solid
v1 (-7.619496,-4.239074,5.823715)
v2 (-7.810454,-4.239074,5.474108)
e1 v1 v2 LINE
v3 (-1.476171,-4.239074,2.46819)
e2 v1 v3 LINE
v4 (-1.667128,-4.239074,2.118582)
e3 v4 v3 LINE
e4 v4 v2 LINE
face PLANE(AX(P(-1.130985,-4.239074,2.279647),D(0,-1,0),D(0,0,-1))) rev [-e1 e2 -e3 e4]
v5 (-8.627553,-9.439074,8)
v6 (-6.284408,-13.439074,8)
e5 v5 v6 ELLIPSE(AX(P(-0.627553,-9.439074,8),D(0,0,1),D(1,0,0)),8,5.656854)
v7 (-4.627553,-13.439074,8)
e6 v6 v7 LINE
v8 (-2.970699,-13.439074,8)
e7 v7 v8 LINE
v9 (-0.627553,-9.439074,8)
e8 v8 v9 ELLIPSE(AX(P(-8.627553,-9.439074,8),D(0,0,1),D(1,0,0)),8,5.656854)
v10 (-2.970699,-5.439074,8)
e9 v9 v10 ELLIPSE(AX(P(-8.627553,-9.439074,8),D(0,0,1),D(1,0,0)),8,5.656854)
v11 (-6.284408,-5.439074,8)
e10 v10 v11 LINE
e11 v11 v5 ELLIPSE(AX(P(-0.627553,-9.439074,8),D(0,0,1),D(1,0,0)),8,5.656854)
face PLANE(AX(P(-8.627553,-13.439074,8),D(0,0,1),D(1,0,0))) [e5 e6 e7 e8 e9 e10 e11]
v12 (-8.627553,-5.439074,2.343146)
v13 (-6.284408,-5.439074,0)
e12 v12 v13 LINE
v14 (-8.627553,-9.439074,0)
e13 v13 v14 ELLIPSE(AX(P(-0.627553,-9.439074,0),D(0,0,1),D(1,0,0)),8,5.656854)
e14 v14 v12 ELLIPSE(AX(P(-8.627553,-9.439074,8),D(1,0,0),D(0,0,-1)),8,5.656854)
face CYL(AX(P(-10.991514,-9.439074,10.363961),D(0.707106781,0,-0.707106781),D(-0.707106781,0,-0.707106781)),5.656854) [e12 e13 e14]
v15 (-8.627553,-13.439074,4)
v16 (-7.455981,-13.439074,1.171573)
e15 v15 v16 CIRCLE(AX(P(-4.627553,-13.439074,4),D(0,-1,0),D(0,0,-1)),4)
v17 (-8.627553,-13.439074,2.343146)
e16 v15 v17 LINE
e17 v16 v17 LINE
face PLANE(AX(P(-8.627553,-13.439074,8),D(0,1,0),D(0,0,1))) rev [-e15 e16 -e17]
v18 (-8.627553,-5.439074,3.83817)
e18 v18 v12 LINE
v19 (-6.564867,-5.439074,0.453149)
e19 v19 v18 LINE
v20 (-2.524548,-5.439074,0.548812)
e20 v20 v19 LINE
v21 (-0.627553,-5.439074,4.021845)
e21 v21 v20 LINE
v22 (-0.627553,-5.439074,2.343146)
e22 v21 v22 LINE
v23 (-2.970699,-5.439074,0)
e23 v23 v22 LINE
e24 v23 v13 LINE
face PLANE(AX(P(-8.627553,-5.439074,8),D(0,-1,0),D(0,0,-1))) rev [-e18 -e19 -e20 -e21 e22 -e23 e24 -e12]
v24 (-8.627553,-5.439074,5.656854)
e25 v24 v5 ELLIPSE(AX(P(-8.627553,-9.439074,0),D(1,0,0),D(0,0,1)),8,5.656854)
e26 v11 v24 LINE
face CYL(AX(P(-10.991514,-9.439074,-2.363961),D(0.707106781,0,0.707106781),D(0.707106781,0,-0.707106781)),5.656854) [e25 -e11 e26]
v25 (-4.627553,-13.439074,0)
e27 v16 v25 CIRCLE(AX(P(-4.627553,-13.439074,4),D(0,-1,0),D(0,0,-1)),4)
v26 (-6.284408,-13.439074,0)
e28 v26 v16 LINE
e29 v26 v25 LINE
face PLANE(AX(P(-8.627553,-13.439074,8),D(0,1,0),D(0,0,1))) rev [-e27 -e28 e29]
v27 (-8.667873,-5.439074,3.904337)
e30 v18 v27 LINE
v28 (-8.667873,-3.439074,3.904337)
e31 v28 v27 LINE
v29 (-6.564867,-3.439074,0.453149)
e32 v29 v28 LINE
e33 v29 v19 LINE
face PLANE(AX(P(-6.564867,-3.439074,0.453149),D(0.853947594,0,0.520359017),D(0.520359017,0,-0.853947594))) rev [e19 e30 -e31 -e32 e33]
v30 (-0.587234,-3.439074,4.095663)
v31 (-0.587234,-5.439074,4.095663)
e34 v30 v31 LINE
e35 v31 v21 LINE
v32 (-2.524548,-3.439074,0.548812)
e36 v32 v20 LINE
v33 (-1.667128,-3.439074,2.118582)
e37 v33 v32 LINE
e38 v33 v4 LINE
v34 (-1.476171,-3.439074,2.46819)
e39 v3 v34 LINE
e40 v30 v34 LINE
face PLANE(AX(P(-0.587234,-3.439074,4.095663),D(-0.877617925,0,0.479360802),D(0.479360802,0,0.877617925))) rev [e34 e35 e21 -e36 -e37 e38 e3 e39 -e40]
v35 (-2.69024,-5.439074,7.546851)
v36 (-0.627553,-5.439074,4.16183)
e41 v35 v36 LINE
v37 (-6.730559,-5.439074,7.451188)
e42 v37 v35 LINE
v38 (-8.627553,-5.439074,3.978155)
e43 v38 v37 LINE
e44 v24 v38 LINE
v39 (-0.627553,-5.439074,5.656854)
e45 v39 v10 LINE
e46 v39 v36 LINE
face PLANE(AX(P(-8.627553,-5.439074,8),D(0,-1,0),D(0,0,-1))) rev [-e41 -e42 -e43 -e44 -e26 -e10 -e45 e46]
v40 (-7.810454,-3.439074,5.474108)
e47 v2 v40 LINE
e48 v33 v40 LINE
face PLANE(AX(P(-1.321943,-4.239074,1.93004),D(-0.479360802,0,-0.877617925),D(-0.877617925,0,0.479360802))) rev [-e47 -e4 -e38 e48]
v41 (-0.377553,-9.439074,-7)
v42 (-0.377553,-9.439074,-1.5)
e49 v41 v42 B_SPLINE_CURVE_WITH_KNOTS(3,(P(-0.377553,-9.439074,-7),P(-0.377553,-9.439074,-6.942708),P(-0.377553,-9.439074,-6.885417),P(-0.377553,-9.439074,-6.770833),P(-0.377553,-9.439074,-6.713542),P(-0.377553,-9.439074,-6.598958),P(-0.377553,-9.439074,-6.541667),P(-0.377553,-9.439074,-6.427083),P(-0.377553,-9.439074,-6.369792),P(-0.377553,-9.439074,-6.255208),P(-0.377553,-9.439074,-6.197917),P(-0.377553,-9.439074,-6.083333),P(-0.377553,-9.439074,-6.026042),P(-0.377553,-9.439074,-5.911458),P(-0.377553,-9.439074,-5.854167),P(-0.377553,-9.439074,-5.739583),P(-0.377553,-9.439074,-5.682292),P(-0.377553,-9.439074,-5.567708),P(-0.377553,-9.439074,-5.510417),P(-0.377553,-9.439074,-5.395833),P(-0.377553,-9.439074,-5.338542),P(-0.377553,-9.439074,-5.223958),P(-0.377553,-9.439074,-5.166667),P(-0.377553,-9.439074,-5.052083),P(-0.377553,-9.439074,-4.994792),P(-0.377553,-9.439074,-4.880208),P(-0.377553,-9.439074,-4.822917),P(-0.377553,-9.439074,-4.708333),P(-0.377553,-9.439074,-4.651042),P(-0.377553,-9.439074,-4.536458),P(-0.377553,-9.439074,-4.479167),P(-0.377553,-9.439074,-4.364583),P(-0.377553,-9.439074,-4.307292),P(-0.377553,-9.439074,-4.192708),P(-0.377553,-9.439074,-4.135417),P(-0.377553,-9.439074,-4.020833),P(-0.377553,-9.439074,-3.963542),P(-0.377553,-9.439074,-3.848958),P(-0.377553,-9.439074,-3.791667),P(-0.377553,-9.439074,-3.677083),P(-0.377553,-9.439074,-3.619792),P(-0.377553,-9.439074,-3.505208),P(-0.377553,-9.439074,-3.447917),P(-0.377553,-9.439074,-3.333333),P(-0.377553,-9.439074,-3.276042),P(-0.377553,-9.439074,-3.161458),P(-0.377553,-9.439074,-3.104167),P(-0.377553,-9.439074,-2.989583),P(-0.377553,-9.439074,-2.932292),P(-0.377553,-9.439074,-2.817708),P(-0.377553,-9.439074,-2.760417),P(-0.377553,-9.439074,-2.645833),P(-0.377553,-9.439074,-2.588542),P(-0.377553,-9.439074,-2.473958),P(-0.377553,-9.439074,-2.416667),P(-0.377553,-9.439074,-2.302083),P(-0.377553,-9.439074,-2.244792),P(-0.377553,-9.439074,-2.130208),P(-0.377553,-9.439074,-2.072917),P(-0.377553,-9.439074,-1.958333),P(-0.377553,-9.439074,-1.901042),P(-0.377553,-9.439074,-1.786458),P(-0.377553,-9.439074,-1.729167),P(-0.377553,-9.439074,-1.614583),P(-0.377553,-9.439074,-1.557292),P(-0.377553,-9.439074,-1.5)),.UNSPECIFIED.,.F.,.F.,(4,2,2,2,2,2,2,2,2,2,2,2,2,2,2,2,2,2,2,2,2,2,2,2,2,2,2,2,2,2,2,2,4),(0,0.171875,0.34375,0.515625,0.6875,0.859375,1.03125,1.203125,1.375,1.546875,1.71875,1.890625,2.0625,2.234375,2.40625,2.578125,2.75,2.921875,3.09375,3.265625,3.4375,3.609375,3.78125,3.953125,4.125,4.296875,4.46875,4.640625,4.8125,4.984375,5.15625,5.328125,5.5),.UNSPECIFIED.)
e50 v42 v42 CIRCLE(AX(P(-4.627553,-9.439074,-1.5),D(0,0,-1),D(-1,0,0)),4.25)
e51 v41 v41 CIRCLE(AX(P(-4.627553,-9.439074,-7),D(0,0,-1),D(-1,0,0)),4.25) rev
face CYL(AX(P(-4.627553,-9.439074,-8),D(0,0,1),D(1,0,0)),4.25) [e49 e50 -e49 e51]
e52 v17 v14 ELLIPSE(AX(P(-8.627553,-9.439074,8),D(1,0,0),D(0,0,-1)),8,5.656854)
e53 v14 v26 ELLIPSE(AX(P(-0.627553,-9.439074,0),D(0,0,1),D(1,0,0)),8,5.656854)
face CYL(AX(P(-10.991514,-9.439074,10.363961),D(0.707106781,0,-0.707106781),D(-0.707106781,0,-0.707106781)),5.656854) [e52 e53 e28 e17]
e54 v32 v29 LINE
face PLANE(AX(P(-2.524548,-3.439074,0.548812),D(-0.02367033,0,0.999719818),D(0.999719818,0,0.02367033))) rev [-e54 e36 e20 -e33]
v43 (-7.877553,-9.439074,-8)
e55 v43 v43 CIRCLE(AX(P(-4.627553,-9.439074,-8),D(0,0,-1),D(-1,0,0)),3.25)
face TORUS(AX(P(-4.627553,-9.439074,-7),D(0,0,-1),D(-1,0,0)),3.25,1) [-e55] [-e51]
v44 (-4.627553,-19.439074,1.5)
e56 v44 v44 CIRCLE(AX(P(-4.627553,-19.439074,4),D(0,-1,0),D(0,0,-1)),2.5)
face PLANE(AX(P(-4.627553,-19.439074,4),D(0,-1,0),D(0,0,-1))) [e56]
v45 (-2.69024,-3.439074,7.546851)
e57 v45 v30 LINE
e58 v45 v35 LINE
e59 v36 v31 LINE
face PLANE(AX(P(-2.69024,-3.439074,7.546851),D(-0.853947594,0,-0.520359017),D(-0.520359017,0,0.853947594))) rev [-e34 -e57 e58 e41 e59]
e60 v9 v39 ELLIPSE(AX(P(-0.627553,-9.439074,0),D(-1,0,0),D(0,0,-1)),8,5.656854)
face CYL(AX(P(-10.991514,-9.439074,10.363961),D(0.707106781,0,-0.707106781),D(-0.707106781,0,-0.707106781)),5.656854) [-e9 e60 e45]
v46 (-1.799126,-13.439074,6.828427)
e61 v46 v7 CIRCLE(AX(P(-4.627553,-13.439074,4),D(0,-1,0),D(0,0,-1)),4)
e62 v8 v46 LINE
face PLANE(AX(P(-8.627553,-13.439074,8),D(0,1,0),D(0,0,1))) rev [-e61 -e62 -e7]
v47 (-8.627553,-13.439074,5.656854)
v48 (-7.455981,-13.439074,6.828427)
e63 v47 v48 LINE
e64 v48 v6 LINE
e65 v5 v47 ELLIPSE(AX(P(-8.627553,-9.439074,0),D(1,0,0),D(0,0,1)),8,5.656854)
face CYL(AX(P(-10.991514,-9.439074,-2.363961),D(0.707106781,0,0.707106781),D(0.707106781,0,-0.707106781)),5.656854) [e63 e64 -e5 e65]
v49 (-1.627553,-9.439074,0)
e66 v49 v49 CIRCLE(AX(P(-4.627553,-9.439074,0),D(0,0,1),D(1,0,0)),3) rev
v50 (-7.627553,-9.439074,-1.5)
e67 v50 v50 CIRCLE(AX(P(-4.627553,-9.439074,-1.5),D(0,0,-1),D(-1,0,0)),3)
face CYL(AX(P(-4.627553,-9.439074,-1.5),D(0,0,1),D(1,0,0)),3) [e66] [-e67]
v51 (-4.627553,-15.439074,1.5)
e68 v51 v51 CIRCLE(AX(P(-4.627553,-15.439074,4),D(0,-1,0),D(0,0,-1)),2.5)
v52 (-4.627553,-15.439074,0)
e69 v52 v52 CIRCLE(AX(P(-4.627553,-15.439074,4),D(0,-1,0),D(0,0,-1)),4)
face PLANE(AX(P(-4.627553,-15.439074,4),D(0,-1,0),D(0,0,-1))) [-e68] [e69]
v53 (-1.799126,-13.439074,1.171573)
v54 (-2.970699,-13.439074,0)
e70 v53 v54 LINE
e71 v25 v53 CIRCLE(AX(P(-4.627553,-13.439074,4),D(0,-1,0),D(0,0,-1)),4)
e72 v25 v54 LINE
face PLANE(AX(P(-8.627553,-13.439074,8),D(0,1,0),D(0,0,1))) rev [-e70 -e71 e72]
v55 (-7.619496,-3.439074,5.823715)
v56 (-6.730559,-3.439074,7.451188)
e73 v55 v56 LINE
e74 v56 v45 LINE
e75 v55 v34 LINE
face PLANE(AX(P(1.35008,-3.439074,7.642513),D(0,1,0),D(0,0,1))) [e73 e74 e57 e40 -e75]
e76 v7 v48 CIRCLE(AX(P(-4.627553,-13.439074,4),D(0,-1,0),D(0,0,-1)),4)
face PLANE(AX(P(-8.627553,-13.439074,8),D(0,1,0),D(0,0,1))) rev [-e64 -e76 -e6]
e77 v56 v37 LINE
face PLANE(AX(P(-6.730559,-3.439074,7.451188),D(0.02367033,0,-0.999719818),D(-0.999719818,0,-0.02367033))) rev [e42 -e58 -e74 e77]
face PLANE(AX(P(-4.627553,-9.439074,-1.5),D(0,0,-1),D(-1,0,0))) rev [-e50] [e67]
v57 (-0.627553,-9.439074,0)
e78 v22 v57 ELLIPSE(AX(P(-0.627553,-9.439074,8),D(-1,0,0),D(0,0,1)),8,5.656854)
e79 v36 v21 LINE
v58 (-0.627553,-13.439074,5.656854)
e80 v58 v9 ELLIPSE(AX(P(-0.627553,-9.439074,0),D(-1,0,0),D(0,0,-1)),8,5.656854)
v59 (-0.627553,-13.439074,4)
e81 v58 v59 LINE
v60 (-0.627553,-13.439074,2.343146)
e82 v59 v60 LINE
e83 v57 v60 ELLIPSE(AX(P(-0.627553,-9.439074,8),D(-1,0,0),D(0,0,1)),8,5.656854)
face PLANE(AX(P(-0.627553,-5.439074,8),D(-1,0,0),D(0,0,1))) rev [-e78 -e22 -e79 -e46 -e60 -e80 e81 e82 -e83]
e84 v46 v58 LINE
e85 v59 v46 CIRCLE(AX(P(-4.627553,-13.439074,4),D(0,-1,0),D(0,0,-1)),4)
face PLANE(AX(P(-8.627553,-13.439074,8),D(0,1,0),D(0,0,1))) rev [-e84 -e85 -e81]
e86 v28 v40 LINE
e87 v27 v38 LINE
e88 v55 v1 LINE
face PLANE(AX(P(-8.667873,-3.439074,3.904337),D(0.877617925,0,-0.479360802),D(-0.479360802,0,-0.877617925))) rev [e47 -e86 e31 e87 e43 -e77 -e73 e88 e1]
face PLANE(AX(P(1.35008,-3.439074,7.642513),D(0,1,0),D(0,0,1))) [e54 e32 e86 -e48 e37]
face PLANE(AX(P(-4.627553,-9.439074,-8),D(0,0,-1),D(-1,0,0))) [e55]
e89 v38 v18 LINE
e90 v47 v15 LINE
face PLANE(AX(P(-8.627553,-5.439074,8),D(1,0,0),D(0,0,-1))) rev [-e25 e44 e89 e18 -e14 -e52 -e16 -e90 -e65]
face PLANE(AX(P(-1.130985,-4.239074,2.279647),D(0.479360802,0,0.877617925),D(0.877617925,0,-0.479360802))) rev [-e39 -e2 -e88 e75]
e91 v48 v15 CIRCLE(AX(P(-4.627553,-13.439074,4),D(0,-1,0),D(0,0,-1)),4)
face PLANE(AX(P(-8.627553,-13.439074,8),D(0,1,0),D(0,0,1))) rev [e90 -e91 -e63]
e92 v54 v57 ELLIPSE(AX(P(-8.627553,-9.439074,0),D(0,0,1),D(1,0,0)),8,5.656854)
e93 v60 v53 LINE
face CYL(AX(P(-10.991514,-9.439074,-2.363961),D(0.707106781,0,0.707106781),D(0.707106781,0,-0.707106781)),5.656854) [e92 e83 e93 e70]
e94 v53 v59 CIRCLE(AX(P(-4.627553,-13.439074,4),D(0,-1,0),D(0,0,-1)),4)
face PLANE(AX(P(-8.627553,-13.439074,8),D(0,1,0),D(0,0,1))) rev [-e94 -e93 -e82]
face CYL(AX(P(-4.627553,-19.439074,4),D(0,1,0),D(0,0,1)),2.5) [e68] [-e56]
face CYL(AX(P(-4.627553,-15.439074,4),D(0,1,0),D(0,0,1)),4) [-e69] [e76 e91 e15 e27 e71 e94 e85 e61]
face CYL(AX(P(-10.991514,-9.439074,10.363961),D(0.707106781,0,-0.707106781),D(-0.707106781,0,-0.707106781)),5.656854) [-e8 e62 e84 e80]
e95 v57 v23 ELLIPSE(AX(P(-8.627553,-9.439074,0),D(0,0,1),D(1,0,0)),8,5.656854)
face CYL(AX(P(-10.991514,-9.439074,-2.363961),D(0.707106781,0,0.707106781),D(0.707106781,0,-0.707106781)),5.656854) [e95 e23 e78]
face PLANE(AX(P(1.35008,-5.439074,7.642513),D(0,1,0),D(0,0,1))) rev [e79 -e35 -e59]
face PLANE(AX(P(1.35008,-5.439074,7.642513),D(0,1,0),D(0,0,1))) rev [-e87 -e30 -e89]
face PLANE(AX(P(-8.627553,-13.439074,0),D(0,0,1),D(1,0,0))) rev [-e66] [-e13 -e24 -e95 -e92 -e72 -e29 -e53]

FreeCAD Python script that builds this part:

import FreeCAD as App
import Part
import Sketcher

V = App.Vector


def edges_at(feature, points):
    """Names of the edges that pass closest to the given points."""
    edges = feature.Shape.Edges
    near = lambda p: min(range(len(edges)), key=lambda i: edges[i].distToShape(Part.Vertex(*p))[0])
    return sorted({f"Edge{near(p) + 1}" for p in points})


def add_polygon(sketch, points):
    """Adds a closed chain of lines whose ends are joined by coincident constraints."""
    first, n = sketch.GeometryCount, len(points)
    for a, b in zip(points, points[1:] + points[:1]):
        sketch.addGeometry(Part.LineSegment(App.Vector(*a, 0), App.Vector(*b, 0)), False)
    for i in range(n):
        sketch.addConstraint(Sketcher.Constraint("Coincident", first + i, 2, first + (i + 1) % n, 1))

doc = App.newDocument("Part")
body = doc.addObject("PartDesign::Body", "Body")

sketch1 = doc.addObject("Sketcher::SketchObject", "Sketch")
body.addObject(sketch1)
sketch1.AttachmentSupport = (doc.XY_Plane, [""])
sketch1.MapMode = "FlatFace"
add_polygon(sketch1, [(-9, -5), (-9, -13), (-1, -13), (-1, -5)])
sketch1.addConstraint([
    Sketcher.Constraint("Vertical", 0),
    Sketcher.Constraint("Horizontal", 1),
    Sketcher.Constraint("Vertical", 2),
    Sketcher.Constraint("Horizontal", 3),
    Sketcher.Constraint("Equal", 3, 0),
    Sketcher.Constraint("DistanceX", 1, 1, 1, 2, 8.0),
    Sketcher.Constraint("DistanceX", 0, 2, -1, 1, 8.627553),
    Sketcher.Constraint("DistanceY", 0, 2, -1, 1, 13.439074),
])
pad1 = doc.addObject("PartDesign::Pad", "Pad")
body.addObject(pad1)
pad1.Profile = sketch1
pad1.Length = 8

sketch2 = doc.addObject("Sketcher::SketchObject", "Sketch001")
body.addObject(sketch2)
sketch2.Placement = App.Placement(V(-4.313777, 0, 4.313777), App.Rotation(V(-0.707106781, 0, -0.707106781), V(0, 0.999999999, 0), V(0.707106781, 0, -0.707106781), "ZXY"))
sketch2.addGeometry([
    Part.Circle(V(0, -9, 0), V(0, 0, 1), 8),
    Part.Circle(V(0, -9, 0), V(0, 0, 1), 6),
], False)
sketch2.addConstraint([
    Sketcher.Constraint("Coincident", 1, 3, 0, 3),
    Sketcher.Constraint("Diameter", 1, 11.313708),
    Sketcher.Constraint("Diameter", 0, 15.728875),
    Sketcher.Constraint("DistanceX", -1, 1, 0, 3, 0.443747),
    Sketcher.Constraint("DistanceY", 0, 3, -1, 1, 9.439074),
])
pocket1 = doc.addObject("PartDesign::Pocket", "Pocket")
body.addObject(pocket1)
pocket1.Profile = sketch2
pocket1.Length = 18
pocket1.Midplane = True

sketch3 = doc.addObject("Sketcher::SketchObject", "Sketch002")
body.addObject(sketch3)
sketch3.Placement = App.Placement(V(-0.313777, 0, -0.313777), App.Rotation(V(0.707106781, 0, -0.707106781), V(0, 0.999999999, 0), V(0.707106781, 0, 0.707106781), "ZXY"))
sketch3.addGeometry([
    Part.Circle(V(-6, -9, 0), V(0, 0, 1), 8),
    Part.Circle(V(-6, -9, 0), V(0, 0, 1), 6),
], False)
sketch3.addConstraint([
    Sketcher.Constraint("Coincident", 1, 3, 0, 3),
    Sketcher.Constraint("Diameter", 1, 11.313708),
    Sketcher.Constraint("Diameter", 0, 16.704496),
    Sketcher.Constraint("DistanceX", 0, 3, -1, 1, 6.100602),
    Sketcher.Constraint("DistanceY", 0, 3, -1, 1, 9.439074),
])
pocket2 = doc.addObject("PartDesign::Pocket", "Pocket001")
body.addObject(pocket2)
pocket2.Profile = sketch3
pocket2.Length = 18
pocket2.Midplane = True

sketch4 = doc.addObject("Sketcher::SketchObject", "Sketch003")
body.addObject(sketch4)
sketch4.AttachmentSupport = (doc.XZ_Plane, [""])
sketch4.MapMode = "FlatFace"
sketch4.AttachmentOffset = App.Placement(V(0, 0, 5.439074), App.Rotation())
add_polygon(sketch4, [(-2.7, 7.5), (-0.6, 4.1), (-2.5, 0.5), (-6.6, 0.5), (-8.7, 3.9), (-6.7, 7.5)])
sketch4.addConstraint([
    Sketcher.Constraint("Parallel", 0, 3),
    Sketcher.Constraint("Parallel", 1, 4),
    Sketcher.Constraint("Parallel", 2, 5),
    Sketcher.Constraint("Equal", 0, 1),
    Sketcher.Constraint("Equal", 1, 2),
    Sketcher.Constraint("Equal", 2, 3),
    Sketcher.Constraint("DistanceY", 2, 2, 5, 2, 7.093701),
    Sketcher.Constraint("Distance", 0, 4.041452),
    Sketcher.Constraint("DistanceY", -1, 1, 1, 2, 0.548812),
    Sketcher.Constraint("DistanceY", -1, 1, 2, 2, 0.453149),
    Sketcher.Constraint("DistanceX", 4, 2, -1, 1, 6.730559),
    Sketcher.Constraint("DistanceY", 1, 2, 0, 2, 3.546851),
])
pad2 = doc.addObject("PartDesign::Pad", "Pad001")
body.addObject(pad2)
pad2.Profile = sketch4
pad2.Length = 2
pad2.Reversed = True

sketch5 = doc.addObject("Sketcher::SketchObject", "Sketch004")
body.addObject(sketch5)
sketch5.AttachmentSupport = (doc.XZ_Plane, [""])
sketch5.MapMode = "FlatFace"
sketch5.AttachmentOffset = App.Placement(V(0, 0, 13.439074), App.Rotation())
sketch5.addGeometry(Part.Circle(V(-4.6, 4, 0), V(0, 0, 1), 4), False)
sketch5.addConstraint([
    Sketcher.Constraint("Diameter", 0, 8.0),
    Sketcher.Constraint("DistanceY", -1, 1, 0, 3, 4.0),
    Sketcher.Constraint("DistanceX", 0, 3, -1, 1, 4.627553),
])
pad3 = doc.addObject("PartDesign::Pad", "Pad002")
body.addObject(pad3)
pad3.Profile = sketch5
pad3.Length = 2

sketch6 = doc.addObject("Sketcher::SketchObject", "Sketch005")
body.addObject(sketch6)
sketch6.AttachmentSupport = (doc.XZ_Plane, [""])
sketch6.MapMode = "FlatFace"
sketch6.AttachmentOffset = App.Placement(V(0, 0, 15.439074), App.Rotation())
sketch6.addGeometry(Part.Circle(V(-4.6, 4, 0), V(0, 0, 1), 2.5), False)
sketch6.addConstraint([
    Sketcher.Constraint("Diameter", 0, 5.0),
    Sketcher.Constraint("DistanceY", -1, 1, 0, 3, 4.0),
    Sketcher.Constraint("DistanceX", 0, 3, -1, 1, 4.627553),
])
pad4 = doc.addObject("PartDesign::Pad", "Pad003")
body.addObject(pad4)
pad4.Profile = sketch6
pad4.Length = 4

sketch7 = doc.addObject("Sketcher::SketchObject", "Sketch006")
body.addObject(sketch7)
sketch7.AttachmentSupport = (doc.XY_Plane, [""])
sketch7.MapMode = "FlatFace"
sketch7.addGeometry(Part.Circle(V(-4.6, -9.4, 0), V(0, 0, 1), 3), False)
sketch7.addConstraint([
    Sketcher.Constraint("Diameter", 0, 6.0),
    Sketcher.Constraint("DistanceX", 0, 3, -1, 1, 4.627553),
    Sketcher.Constraint("DistanceY", 0, 3, -1, 1, 9.439074),
])
pad5 = doc.addObject("PartDesign::Pad", "Pad004")
body.addObject(pad5)
pad5.Profile = sketch7
pad5.Length = 1.5
pad5.Reversed = True

sketch8 = doc.addObject("Sketcher::SketchObject", "Sketch007")
body.addObject(sketch8)
sketch8.AttachmentSupport = (doc.XY_Plane, [""])
sketch8.MapMode = "FlatFace"
sketch8.AttachmentOffset = App.Placement(V(0, 0, -1.5), App.Rotation())
sketch8.addGeometry(Part.Circle(V(-4.6, -9.4, 0), V(0, 0, 1), 4.2), False)
sketch8.addConstraint([
    Sketcher.Constraint("Diameter", 0, 8.5),
    Sketcher.Constraint("DistanceX", 0, 3, -1, 1, 4.627553),
    Sketcher.Constraint("DistanceY", 0, 3, -1, 1, 9.439074),
])
pad6 = doc.addObject("PartDesign::Pad", "Pad005")
body.addObject(pad6)
pad6.Profile = sketch8
pad6.Length = 6.5
pad6.Reversed = True
doc.recompute()

fillet = doc.addObject("PartDesign::Fillet", "Fillet")
body.addObject(fillet)
fillet.Base = (pad6, edges_at(pad6, [(-8.878, -9.439, -8)]))
fillet.Radius = 1

sketch9 = doc.addObject("Sketcher::SketchObject", "Sketch008")
body.addObject(sketch9)
sketch9.AttachmentSupport = (doc.XZ_Plane, [""])
sketch9.MapMode = "FlatFace"
sketch9.AttachmentOffset = App.Placement(V(0, 0, 3.439074), App.Rotation())
add_polygon(sketch9, [(-1.32, 1.93), (-8.15, 5.66), (-7.96, 6.01), (-1.13, 2.28)])
sketch9.addConstraint([
    Sketcher.Constraint("Perpendicular", 0, 1),
    Sketcher.Constraint("Perpendicular", 1, 2),
    Sketcher.Constraint("Perpendicular", 2, 3),
    Sketcher.Constraint("DistanceY", 2, 2, 0, 2, 3.380799),
    Sketcher.Constraint("Distance", 1, 0.398359),
    Sketcher.Constraint("DistanceY", -1, 1, 3, 2, 1.93004),
    Sketcher.Constraint("DistanceX", 1, 2, 2, 2, 6.82966),
    Sketcher.Constraint("DistanceX", 0, 2, -1, 1, 8.151603),
])
pocket3 = doc.addObject("PartDesign::Pocket", "Pocket002")
body.addObject(pocket3)
pocket3.Profile = sketch9
pocket3.Length = 0.8
pocket3.Reversed = True

doc.recompute()
